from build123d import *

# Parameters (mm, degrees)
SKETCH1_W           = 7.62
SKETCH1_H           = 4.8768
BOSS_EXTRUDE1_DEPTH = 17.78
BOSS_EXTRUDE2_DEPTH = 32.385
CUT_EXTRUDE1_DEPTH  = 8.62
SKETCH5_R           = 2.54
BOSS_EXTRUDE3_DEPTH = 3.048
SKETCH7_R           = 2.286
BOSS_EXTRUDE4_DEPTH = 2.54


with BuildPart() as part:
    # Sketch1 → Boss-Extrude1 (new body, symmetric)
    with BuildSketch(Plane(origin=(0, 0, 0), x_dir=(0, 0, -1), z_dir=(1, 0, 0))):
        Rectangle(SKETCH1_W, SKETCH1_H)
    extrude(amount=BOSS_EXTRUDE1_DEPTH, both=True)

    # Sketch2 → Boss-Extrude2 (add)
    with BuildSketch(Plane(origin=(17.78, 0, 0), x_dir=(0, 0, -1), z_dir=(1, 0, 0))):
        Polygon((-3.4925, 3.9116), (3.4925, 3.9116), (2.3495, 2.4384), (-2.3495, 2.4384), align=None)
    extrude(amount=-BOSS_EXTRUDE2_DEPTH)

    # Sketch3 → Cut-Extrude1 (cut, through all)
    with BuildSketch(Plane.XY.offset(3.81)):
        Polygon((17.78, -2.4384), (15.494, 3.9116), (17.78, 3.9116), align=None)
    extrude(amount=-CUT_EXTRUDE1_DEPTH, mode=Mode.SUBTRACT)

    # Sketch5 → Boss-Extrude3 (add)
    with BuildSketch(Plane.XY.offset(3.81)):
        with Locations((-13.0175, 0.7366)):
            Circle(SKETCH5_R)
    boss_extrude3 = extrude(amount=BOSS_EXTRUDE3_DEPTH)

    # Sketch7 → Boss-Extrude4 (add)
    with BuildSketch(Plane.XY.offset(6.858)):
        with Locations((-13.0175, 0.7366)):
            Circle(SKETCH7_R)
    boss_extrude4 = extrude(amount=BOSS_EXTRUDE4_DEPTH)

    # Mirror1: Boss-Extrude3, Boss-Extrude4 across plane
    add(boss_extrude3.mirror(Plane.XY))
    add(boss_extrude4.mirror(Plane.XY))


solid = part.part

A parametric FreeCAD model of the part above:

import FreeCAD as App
import Part
import Sketcher
from FreeCAD import Vector
Q = App.Units.Quantity


def add_polygon(sketch, points):
    """Adds a closed chain of lines whose ends are joined by coincident constraints."""
    first, n = sketch.GeometryCount, len(points)
    for a, b in zip(points, points[1:] + points[:1]):
        sketch.addGeometry(Part.LineSegment(App.Vector(*a, 0), App.Vector(*b, 0)), False)
    for i in range(n):
        sketch.addConstraint(Sketcher.Constraint("Coincident", first + i, 2, first + (i + 1) % n, 1))

doc = App.newDocument("Part")
body = doc.addObject("PartDesign::Body", "Body")

# Sketch on YZ plane
sketch1 = doc.addObject("Sketcher::SketchObject", "Sketch")
body.addObject(sketch1)
sketch1.AttachmentSupport = (doc.YZ_Plane, [""])
sketch1.MapMode = "FlatFace"
add_polygon(sketch1, [(2.4384, 3.81), (-2.4384, 3.81), (-2.4384, -3.81), (2.4384, -3.81)])  # lines 0-3
sketch1.addConstraint([
    Sketcher.Constraint("Horizontal", 0),
    Sketcher.Constraint("Vertical", 1),
    Sketcher.Constraint("Horizontal", 2),
    Sketcher.Constraint("Vertical", 3),
    Sketcher.Constraint("Symmetric", 0, 2, 2, 2, -1, 1),
    Sketcher.Constraint("DistanceY", 1, 2, 1, 1, Q("0.3 in")),
    Sketcher.Constraint("DistanceX", 0, 2, 0, 1, Q("0.192 in")),
])
pad1 = doc.addObject("PartDesign::Pad", "Pad")
body.addObject(pad1)
pad1.Profile = sketch1
pad1.Length = Q("1.4 in")
pad1.Midplane = True

# Sketch on YZ plane
sketch2 = doc.addObject("Sketcher::SketchObject", "Sketch001")
body.addObject(sketch2)
sketch2.AttachmentSupport = (doc.YZ_Plane, [""])
sketch2.MapMode = "FlatFace"
sketch2.AttachmentOffset = App.Placement(Vector(0, 0, 0.7 * 25.4), App.Rotation())
add_polygon(sketch2, [(3.9116, -3.4925), (3.9116, 3.4925), (2.4384, 2.3495), (2.4384, -2.3495)])  # lines 0-3
sketch2.addConstraint([
    Sketcher.Constraint("Vertical", 0),
    Sketcher.Constraint("Vertical", 2),
    Sketcher.Constraint("Equal", 1, 3),
    Sketcher.Constraint("DistanceY", 0, 1, 0, 2, Q("0.275 in")),
    Sketcher.Constraint("DistanceY", 2, 2, 2, 1, Q("0.185 in")),
    Sketcher.Constraint("DistanceX", -1, 1, 0, 2, Q("0.154 in")),
    Sketcher.Constraint("DistanceX", -1, 1, 1, 2, Q("0.096 in")),
    Sketcher.Constraint("DistanceY", -1, 1, 0, 2, Q("0.1375 in")),
])
pad2 = doc.addObject("PartDesign::Pad", "Pad001")
body.addObject(pad2)
pad2.Profile = sketch2
pad2.Length = Q("1.275 in")
pad2.Reversed = True

# Sketch on XY plane
sketch3 = doc.addObject("Sketcher::SketchObject", "Sketch002")
body.addObject(sketch3)
sketch3.AttachmentSupport = (doc.XY_Plane, [""])
sketch3.MapMode = "FlatFace"
sketch3.AttachmentOffset = App.Placement(Vector(0, 0, 0.15 * 25.4), App.Rotation())
add_polygon(sketch3, [(15.494, 3.9116), (17.78, -2.4384), (17.78, 3.9116)])  # lines 0-2
sketch3.addConstraint([
    Sketcher.Constraint("Vertical", 1),
    Sketcher.Constraint("Horizontal", 2),
    Sketcher.Constraint("DistanceX", 2, 2, 2, 1, Q("0.09 in")),
    Sketcher.Constraint("DistanceY", 1, 1, 1, 2, Q("0.25 in")),
    Sketcher.Constraint("DistanceX", -1, 1, 0, 2, Q("0.7 in")),
    Sketcher.Constraint("DistanceY", 0, 2, -1, 1, Q("0.096 in")),
])
pocket1 = doc.addObject("PartDesign::Pocket", "Pocket")
body.addObject(pocket1)
pocket1.Profile = sketch3
pocket1.Type = "ThroughAll"

# Sketch on XY plane
sketch4 = doc.addObject("Sketcher::SketchObject", "Sketch003")
body.addObject(sketch4)
sketch4.AttachmentSupport = (doc.XY_Plane, [""])
sketch4.MapMode = "FlatFace"
sketch4.AttachmentOffset = App.Placement(Vector(0, 0, 0.15 * 25.4), App.Rotation())
sketch4.addGeometry(Part.Circle(Vector(-13.0175, 0.7366, 0), Vector(0, 0, 1), 2.54), False)
sketch4.addConstraint([
    Sketcher.Constraint("Diameter", 0, Q("0.2 in")),
    Sketcher.Constraint("DistanceY", -1, 1, 0, 3, Q("0.029 in")),
    Sketcher.Constraint("DistanceX", 0, 3, -1, 1, Q("0.5125 in")),
])
pad3 = doc.addObject("PartDesign::Pad", "Pad002")
body.addObject(pad3)
pad3.Profile = sketch4
pad3.Length = Q("0.12 in")

# Sketch on XY plane
sketch5 = doc.addObject("Sketcher::SketchObject", "Sketch004")
body.addObject(sketch5)
sketch5.AttachmentSupport = (doc.XY_Plane, [""])
sketch5.MapMode = "FlatFace"
sketch5.AttachmentOffset = App.Placement(Vector(0, 0, 0.27 * 25.4), App.Rotation())
sketch5.addGeometry(Part.Circle(Vector(-13.0175, 0.7366, 0), Vector(0, 0, 1), 2.286), False)
sketch5.addConstraint([
    Sketcher.Constraint("Diameter", 0, Q("0.18 in")),
    Sketcher.Constraint("DistanceY", -1, 1, 0, 3, Q("0.029 in")),
    Sketcher.Constraint("DistanceX", 0, 3, -1, 1, Q("0.5125 in")),
])
pad4 = doc.addObject("PartDesign::Pad", "Pad003")
body.addObject(pad4)
pad4.Profile = sketch5
pad4.Length = Q("0.1 in")
doc.recompute()

mirrored = doc.addObject("PartDesign::Mirrored", "Mirrored")
body.addObject(mirrored)
mirrored.Originals = [pad3, pad4]
mirrored.MirrorPlane = (doc.XY_Plane, [""])
body.Tip = mirrored

doc.recompute()
